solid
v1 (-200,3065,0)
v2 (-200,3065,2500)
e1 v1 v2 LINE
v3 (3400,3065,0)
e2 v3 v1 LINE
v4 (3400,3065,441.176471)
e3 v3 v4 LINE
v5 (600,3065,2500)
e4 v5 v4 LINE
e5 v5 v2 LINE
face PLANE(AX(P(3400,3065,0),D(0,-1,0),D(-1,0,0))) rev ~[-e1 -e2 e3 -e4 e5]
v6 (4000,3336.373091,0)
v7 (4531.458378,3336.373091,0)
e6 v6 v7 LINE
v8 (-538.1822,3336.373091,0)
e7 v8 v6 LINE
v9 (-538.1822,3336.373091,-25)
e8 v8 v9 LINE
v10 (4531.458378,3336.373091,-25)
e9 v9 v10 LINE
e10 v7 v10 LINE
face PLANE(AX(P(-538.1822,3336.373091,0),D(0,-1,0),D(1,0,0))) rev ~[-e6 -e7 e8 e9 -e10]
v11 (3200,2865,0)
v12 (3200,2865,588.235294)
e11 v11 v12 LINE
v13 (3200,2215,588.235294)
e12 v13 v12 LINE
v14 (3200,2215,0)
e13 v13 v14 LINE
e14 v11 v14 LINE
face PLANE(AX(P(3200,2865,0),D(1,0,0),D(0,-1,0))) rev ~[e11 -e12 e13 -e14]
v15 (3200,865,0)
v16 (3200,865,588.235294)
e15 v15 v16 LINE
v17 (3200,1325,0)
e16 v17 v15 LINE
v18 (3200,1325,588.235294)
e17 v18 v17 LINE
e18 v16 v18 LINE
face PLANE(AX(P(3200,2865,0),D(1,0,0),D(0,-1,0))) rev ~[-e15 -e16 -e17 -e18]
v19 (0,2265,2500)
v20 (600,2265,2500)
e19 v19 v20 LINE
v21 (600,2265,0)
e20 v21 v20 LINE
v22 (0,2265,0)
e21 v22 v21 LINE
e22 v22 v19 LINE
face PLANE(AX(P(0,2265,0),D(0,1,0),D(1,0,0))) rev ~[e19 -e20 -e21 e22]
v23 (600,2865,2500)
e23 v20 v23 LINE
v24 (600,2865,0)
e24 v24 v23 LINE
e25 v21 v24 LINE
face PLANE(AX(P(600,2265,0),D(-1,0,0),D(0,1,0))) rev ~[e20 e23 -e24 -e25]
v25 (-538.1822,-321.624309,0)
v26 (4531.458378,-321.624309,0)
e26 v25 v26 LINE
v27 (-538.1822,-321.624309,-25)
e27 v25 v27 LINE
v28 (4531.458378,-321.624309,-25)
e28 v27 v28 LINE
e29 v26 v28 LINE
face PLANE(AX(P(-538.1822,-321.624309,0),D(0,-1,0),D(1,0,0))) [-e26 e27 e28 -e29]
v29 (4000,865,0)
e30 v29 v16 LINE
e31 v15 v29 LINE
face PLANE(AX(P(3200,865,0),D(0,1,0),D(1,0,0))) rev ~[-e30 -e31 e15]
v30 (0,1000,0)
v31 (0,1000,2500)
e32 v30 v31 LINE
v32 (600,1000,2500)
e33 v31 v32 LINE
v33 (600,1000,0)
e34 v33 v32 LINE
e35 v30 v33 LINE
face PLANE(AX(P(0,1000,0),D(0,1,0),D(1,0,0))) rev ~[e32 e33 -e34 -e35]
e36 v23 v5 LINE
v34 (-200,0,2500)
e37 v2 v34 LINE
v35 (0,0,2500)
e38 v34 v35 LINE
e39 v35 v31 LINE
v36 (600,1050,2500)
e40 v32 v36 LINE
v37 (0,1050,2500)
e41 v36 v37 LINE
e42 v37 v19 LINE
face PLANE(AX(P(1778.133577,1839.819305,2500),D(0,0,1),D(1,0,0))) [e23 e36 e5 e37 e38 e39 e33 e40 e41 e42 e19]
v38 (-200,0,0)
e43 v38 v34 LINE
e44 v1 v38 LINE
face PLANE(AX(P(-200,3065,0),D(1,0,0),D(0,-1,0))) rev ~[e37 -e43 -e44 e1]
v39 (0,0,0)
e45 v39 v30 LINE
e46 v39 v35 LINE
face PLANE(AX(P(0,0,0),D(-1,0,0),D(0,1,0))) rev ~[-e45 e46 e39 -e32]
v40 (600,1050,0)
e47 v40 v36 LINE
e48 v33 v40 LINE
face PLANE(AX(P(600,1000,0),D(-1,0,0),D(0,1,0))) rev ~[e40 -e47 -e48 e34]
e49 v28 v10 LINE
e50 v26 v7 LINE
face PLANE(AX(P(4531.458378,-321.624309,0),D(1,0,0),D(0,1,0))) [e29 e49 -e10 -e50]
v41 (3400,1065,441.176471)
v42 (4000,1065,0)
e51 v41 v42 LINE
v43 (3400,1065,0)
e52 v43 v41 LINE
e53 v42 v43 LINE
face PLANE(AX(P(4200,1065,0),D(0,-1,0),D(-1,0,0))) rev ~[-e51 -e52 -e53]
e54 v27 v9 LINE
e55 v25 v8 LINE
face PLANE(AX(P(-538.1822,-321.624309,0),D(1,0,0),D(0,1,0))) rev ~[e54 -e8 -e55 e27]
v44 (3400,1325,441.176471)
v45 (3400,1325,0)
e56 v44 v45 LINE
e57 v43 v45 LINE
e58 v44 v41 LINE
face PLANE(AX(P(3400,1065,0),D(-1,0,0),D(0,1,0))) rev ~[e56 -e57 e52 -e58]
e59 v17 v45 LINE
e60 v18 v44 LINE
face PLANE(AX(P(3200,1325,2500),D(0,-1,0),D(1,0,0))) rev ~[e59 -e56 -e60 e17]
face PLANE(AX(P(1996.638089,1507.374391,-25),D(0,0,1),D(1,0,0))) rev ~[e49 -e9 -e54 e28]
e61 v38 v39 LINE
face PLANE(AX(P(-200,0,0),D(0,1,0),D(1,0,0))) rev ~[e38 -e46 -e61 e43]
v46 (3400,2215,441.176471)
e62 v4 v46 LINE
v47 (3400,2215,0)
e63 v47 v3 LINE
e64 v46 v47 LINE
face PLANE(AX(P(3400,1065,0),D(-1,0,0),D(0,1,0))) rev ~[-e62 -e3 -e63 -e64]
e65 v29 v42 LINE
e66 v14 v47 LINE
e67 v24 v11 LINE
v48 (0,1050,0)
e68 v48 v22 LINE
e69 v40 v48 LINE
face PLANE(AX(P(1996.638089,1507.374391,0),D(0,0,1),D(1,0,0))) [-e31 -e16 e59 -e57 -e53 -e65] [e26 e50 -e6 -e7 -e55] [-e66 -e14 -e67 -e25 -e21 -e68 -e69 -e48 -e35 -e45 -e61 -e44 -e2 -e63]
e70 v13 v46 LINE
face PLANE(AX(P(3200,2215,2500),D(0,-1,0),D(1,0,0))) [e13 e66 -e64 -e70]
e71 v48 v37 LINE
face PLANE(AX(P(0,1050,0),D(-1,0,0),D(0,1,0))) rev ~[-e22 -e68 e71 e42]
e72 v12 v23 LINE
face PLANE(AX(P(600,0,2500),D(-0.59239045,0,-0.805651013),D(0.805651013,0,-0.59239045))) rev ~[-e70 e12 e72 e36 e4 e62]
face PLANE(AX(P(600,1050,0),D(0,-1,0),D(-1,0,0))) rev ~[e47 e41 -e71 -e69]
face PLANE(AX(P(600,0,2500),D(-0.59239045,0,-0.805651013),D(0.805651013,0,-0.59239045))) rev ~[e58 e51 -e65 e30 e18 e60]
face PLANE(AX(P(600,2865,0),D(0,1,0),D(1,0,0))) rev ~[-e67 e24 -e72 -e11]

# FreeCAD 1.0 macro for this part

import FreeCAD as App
import Part
import Sketcher

V = App.Vector
Q = App.Units.Quantity


def add_polygon(sketch, points):
    """Adds a closed chain of lines whose ends are joined by coincident constraints."""
    first, n = sketch.GeometryCount, len(points)
    for a, b in zip(points, points[1:] + points[:1]):
        sketch.addGeometry(Part.LineSegment(App.Vector(*a, 0), App.Vector(*b, 0)), False)
    for i in range(n):
        sketch.addConstraint(Sketcher.Constraint("Coincident", first + i, 2, first + (i + 1) % n, 1))

doc = App.newDocument("Part")
body = doc.addObject("PartDesign::Body", "Body")

# Sketch on XY plane
sketch1 = body.newObject("Sketcher::SketchObject", "Sketch")
sketch1.AttachmentSupport = (doc.getObject("XY_Plane"), [""])
sketch1.MapMode = "FlatFace"
add_polygon(sketch1, [(-200, 0), (0, 0), (0, 1000), (600, 1000), (600, 1050), (0, 1050), (0, 2265), (600, 2265), (600, 2865), (3200, 2865), (3200, 865), (4000, 865), (4000, 0), (4200, 0), (4200, 1065), (3400, 1065), (3400, 3065), (-200, 3065)])  # lines 0-17
sketch1.addConstraint(Sketcher.Constraint("Horizontal", 0))
sketch1.addConstraint(Sketcher.Constraint("Vertical", 1))
sketch1.addConstraint(Sketcher.Constraint("Horizontal", 2))
sketch1.addConstraint(Sketcher.Constraint("Vertical", 3))
sketch1.addConstraint(Sketcher.Constraint("Horizontal", 4))
sketch1.addConstraint(Sketcher.Constraint("Vertical", 5))
sketch1.addConstraint(Sketcher.Constraint("Horizontal", 6))
sketch1.addConstraint(Sketcher.Constraint("Vertical", 7))
sketch1.addConstraint(Sketcher.Constraint("Horizontal", 8))
sketch1.addConstraint(Sketcher.Constraint("Vertical", 9))
sketch1.addConstraint(Sketcher.Constraint("Horizontal", 10))
sketch1.addConstraint(Sketcher.Constraint("Vertical", 11))
sketch1.addConstraint(Sketcher.Constraint("Horizontal", 12))
sketch1.addConstraint(Sketcher.Constraint("Vertical", 13))
sketch1.addConstraint(Sketcher.Constraint("Horizontal", 14))
sketch1.addConstraint(Sketcher.Constraint("Vertical", 15))
sketch1.addConstraint(Sketcher.Constraint("Horizontal", 16))
sketch1.addConstraint(Sketcher.Constraint("Vertical", 17))
sketch1.addConstraint(Sketcher.Constraint("Coincident", 0, 2, -1, 1))
sketch1.addConstraint(Sketcher.Constraint("PointOnObject", 4, 2, -2))
sketch1.addConstraint(Sketcher.Constraint("PointOnObject", 11, 2, -1))
sketch1.addConstraint(Sketcher.Constraint("Vertical", 3, 2, 6, 2))
sketch1.addConstraint(Sketcher.Constraint("Equal", 0, 12))
sketch1.addConstraint(Sketcher.Constraint("Equal", 10, 14))
sketch1.addConstraint(Sketcher.Constraint("Equal", 6, 7))
sketch1.addConstraint(Sketcher.Constraint("Equal", 9, 15))
sketch1.addConstraint(Sketcher.Constraint("DistanceX", 0, 1, 0, 2, Q("200 mm")))
sketch1.addConstraint(Sketcher.Constraint("DistanceX", 2, 1, 2, 2, Q("600 mm")))
sketch1.addConstraint(Sketcher.Constraint("DistanceX", 8, 1, 8, 2, Q("2600 mm")))
sketch1.addConstraint(Sketcher.Constraint("DistanceX", 10, 1, 10, 2, Q("800 mm")))
sketch1.addConstraint(Sketcher.Constraint("DistanceY", 1, 1, 1, 2, Q("1000 mm")))
sketch1.addConstraint(Sketcher.Constraint("DistanceY", 3, 1, 3, 2, Q("50 mm")))
sketch1.addConstraint(Sketcher.Constraint("DistanceY", 5, 1, 5, 2, Q("1215 mm")))
sketch1.addConstraint(Sketcher.Constraint("DistanceY", 9, 2, 9, 1, Q("2000 mm")))
sketch1.addConstraint(Sketcher.Constraint("DistanceY", 13, 1, 13, 2, Q("1065 mm")))
pad1 = body.newObject("PartDesign::Pad", "Pad")
pad1.Profile = sketch1
pad1.Length = 2500

# Sketch on XY plane
sketch2 = body.newObject("Sketcher::SketchObject", "Sketch001")
sketch2.AttachmentSupport = (doc.getObject("XY_Plane"), [""])
sketch2.MapMode = "FlatFace"
add_polygon(sketch2, [(-538, 3336), (-538, -322), (4531, -322), (4531, 3336)])  # lines 0-3
sketch2.addConstraint(Sketcher.Constraint("Vertical", 0))
sketch2.addConstraint(Sketcher.Constraint("Horizontal", 1))
sketch2.addConstraint(Sketcher.Constraint("Vertical", 2))
sketch2.addConstraint(Sketcher.Constraint("Horizontal", 3))
sketch2.addConstraint(Sketcher.Constraint("DistanceY", 0, 2, 0, 1, Q("3657.9974 mm")))
sketch2.addConstraint(Sketcher.Constraint("DistanceX", 0, 2, -1, 1, Q("538.1822 mm")))
sketch2.addConstraint(Sketcher.Constraint("DistanceX", 1, 1, 1, 2, Q("5069.640577 mm")))
sketch2.addConstraint(Sketcher.Constraint("DistanceY", 0, 2, -1, 1, Q("321.624309 mm")))
pad2 = body.newObject("PartDesign::Pad", "Pad001")
pad2.Profile = sketch2
pad2.Length = 25
pad2.Reversed = True

# Sketch on XY plane
sketch3 = body.newObject("Sketcher::SketchObject", "Sketch002")
sketch3.AttachmentSupport = (doc.getObject("XY_Plane"), [""])
sketch3.MapMode = "FlatFace"
sketch3.AttachmentOffset = App.Placement(V(0, 0, 2500), App.Rotation())
add_polygon(sketch3, [(3200, 2215), (3200, 1325), (3400, 1325), (3400, 2215)])  # lines 0-3
add_polygon(sketch3, [(4000, 1065), (4000, 0), (4200, 0), (4200, 1065)])  # lines 4-7
sketch3.addConstraint(Sketcher.Constraint("Vertical", 0))
sketch3.addConstraint(Sketcher.Constraint("Horizontal", 1))
sketch3.addConstraint(Sketcher.Constraint("Vertical", 2))
sketch3.addConstraint(Sketcher.Constraint("Horizontal", 3))
sketch3.addConstraint(Sketcher.Constraint("Vertical", 4))
sketch3.addConstraint(Sketcher.Constraint("Horizontal", 5))
sketch3.addConstraint(Sketcher.Constraint("Vertical", 6))
sketch3.addConstraint(Sketcher.Constraint("Horizontal", 7))
sketch3.addConstraint(Sketcher.Constraint("PointOnObject", 4, 2, -1))
sketch3.addConstraint(Sketcher.Constraint("Equal", 3, 5))
sketch3.addConstraint(Sketcher.Constraint("DistanceX", 1, 1, 1, 2, Q("200 mm")))
sketch3.addConstraint(Sketcher.Constraint("DistanceY", 0, 2, 0, 1, Q("890 mm")))
sketch3.addConstraint(Sketcher.Constraint("DistanceY", 4, 2, 4, 1, Q("1065 mm")))
sketch3.addConstraint(Sketcher.Constraint("DistanceX", -1, 1, 0, 2, Q("3200 mm")))
sketch3.addConstraint(Sketcher.Constraint("DistanceY", -1, 1, 0, 2, Q("1325 mm")))
sketch3.addConstraint(Sketcher.Constraint("DistanceX", -1, 1, 4, 2, Q("4000 mm")))
pocket1 = body.newObject("PartDesign::Pocket", "Pocket")
pocket1.Profile = sketch3
pocket1.Length = 2500

# Sketch on XZ plane
sketch4 = body.newObject("Sketcher::SketchObject", "Sketch003")
sketch4.AttachmentSupport = (doc.getObject("XZ_Plane"), [""])
sketch4.MapMode = "FlatFace"
add_polygon(sketch4, [(4000, 2500), (600, 2500), (4000, 0)])  # lines 0-2
sketch4.addConstraint(Sketcher.Constraint("Horizontal", 0))
sketch4.addConstraint(Sketcher.Constraint("Vertical", 2))
sketch4.addConstraint(Sketcher.Constraint("PointOnObject", 1, 2, -1))
sketch4.addConstraint(Sketcher.Constraint("DistanceX", 0, 2, 0, 1, Q("3400 mm")))
sketch4.addConstraint(Sketcher.Constraint("DistanceY", 2, 1, 2, 2, Q("2500 mm")))
sketch4.addConstraint(Sketcher.Constraint("DistanceX", -1, 1, 0, 2, Q("600 mm")))
pocket2 = body.newObject("PartDesign::Pocket", "Pocket001")
pocket2.Profile = sketch4
pocket2.Type = "ThroughAll"

doc.recompute()
